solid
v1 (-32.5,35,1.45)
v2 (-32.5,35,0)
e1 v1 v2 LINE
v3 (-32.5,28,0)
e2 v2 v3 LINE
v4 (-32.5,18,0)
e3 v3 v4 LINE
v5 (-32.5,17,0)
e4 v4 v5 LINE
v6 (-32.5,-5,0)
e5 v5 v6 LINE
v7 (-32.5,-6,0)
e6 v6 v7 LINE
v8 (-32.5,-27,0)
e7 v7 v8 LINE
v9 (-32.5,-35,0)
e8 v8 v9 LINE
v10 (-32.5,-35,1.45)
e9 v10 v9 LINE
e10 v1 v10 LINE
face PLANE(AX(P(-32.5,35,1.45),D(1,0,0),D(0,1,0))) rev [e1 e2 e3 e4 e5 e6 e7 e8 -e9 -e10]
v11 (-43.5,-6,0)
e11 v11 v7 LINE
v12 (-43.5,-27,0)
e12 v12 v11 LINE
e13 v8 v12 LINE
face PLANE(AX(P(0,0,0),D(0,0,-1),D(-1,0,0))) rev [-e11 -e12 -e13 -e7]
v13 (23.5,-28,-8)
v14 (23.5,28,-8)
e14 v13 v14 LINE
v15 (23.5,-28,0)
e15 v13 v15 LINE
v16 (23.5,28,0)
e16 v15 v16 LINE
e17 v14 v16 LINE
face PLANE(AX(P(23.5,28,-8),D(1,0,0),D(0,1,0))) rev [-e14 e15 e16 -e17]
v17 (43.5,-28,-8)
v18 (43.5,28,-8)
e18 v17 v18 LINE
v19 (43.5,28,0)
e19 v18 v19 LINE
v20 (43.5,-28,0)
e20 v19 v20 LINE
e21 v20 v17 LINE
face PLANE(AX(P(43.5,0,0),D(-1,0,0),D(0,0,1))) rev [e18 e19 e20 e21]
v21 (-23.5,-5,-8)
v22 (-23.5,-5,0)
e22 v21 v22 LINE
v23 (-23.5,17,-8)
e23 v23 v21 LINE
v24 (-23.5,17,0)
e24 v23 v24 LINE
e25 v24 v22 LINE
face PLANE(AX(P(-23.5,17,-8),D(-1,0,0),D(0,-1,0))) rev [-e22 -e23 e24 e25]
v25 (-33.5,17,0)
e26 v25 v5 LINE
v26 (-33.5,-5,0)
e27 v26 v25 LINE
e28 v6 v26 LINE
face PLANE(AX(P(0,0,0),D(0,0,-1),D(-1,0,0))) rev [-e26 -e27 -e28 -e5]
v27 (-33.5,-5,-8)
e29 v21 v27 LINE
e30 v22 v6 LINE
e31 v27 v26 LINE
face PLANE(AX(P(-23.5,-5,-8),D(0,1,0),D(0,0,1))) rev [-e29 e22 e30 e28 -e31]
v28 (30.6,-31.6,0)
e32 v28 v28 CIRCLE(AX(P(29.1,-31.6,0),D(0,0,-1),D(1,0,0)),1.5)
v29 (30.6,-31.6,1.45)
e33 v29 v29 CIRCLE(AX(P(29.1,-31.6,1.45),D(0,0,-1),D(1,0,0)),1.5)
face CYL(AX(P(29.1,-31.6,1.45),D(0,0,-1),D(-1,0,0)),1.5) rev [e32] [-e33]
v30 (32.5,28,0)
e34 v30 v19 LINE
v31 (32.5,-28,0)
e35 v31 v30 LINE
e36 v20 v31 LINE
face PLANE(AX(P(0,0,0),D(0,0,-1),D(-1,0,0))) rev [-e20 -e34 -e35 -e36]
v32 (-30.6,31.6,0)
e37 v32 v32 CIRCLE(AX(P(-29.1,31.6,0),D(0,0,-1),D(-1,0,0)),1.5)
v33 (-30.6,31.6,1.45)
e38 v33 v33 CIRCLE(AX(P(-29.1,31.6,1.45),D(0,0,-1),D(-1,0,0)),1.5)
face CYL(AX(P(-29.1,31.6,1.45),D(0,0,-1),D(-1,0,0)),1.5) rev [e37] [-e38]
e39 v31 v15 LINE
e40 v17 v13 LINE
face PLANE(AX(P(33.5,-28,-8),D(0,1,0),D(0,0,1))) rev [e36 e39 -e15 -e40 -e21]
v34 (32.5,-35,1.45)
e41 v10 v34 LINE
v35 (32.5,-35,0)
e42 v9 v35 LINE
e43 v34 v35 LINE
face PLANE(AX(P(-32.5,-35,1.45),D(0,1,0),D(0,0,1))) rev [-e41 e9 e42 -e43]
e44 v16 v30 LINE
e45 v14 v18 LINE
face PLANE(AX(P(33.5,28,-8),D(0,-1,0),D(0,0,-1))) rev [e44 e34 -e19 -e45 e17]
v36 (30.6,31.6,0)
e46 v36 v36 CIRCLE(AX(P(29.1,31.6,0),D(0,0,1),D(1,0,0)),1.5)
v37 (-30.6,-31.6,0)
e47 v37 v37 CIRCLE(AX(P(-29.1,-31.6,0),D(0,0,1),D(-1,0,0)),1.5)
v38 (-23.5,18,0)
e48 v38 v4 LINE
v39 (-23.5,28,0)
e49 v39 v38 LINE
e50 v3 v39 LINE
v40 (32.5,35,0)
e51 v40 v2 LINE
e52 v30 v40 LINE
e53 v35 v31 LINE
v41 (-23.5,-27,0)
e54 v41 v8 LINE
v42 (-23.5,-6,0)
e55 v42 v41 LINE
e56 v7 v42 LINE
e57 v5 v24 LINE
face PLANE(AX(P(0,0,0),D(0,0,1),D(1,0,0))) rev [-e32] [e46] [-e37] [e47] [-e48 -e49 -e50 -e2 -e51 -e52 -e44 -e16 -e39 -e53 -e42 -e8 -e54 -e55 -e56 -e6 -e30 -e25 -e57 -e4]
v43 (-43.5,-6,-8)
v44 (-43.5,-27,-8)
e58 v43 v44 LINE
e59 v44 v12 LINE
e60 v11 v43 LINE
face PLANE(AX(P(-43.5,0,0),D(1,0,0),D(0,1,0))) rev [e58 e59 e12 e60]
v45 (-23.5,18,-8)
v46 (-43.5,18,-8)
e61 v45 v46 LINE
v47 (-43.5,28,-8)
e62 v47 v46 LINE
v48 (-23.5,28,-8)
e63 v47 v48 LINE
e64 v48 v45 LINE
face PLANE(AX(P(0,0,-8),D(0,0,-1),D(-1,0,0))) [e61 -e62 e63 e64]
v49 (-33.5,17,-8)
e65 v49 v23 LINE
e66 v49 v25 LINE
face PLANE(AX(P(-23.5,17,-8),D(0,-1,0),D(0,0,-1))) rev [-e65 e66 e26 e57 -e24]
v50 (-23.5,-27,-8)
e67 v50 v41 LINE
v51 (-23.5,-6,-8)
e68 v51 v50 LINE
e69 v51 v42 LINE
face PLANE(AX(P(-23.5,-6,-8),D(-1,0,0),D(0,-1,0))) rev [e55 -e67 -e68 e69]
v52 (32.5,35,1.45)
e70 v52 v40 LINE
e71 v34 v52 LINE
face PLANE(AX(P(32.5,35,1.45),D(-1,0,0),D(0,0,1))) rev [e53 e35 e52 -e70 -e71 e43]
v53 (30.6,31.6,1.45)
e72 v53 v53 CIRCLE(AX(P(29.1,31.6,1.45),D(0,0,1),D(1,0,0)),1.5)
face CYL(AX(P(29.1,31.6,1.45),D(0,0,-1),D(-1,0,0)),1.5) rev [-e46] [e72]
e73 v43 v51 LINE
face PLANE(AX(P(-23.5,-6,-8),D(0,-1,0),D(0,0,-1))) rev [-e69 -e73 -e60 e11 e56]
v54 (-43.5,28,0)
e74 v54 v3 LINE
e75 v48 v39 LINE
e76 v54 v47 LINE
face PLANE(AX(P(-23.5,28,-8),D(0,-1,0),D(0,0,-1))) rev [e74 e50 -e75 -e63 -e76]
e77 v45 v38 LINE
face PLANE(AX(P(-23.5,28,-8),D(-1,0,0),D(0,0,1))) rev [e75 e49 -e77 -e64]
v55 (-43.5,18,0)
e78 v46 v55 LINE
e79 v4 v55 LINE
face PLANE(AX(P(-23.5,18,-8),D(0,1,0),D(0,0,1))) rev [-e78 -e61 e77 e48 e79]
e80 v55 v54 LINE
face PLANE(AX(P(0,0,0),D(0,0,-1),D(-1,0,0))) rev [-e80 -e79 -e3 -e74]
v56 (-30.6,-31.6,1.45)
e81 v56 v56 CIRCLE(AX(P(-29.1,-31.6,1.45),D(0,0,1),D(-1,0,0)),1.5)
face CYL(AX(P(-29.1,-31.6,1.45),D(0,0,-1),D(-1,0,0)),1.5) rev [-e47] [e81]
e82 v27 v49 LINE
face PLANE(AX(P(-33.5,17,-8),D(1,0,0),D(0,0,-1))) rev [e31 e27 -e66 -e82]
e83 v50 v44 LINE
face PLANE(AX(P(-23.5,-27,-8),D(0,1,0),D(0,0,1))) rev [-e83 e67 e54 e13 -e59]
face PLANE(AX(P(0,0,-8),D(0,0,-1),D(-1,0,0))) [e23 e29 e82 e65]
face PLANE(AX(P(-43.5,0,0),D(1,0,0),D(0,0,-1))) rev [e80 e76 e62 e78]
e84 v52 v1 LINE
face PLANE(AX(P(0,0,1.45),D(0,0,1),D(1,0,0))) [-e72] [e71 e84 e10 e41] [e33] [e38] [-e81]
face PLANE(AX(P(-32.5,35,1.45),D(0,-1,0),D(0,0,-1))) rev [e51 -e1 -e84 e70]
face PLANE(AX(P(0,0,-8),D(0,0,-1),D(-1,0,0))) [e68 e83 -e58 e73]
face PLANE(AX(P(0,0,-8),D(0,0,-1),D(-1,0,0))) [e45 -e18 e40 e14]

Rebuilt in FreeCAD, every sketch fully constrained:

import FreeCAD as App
import Part
import Sketcher
from FreeCAD import Vector

doc = App.newDocument("Part")
body = doc.addObject("PartDesign::Body", "Body")

sketch1 = body.newObject("Sketcher::SketchObject", "Sketch")
sketch1.AttachmentSupport = (doc.getObject("XY_Plane"), [""])
sketch1.MapMode = "FlatFace"
sketch1.addGeometry([
    Part.LineSegment(Vector(-32.5, 35, 0), Vector(-32.5, -35, 0)),
    Part.LineSegment(Vector(-32.5, -35, 0), Vector(32.5, -35, 0)),
    Part.LineSegment(Vector(32.5, -35, 0), Vector(32.5, 35, 0)),
    Part.LineSegment(Vector(32.5, 35, 0), Vector(-32.5, 35, 0)),
], False)
sketch1.addConstraint([
    Sketcher.Constraint("Coincident", 0, 2, 1, 1),
    Sketcher.Constraint("Coincident", 1, 2, 2, 1),
    Sketcher.Constraint("Coincident", 2, 2, 3, 1),
    Sketcher.Constraint("Coincident", 3, 2, 0, 1),
    Sketcher.Constraint("Vertical", 0),
    Sketcher.Constraint("Horizontal", 1),
    Sketcher.Constraint("Vertical", 2),
    Sketcher.Constraint("Horizontal", 3),
    Sketcher.Constraint("Symmetric", 0, 2, 2, 2, -1, 1),
    Sketcher.Constraint("DistanceX", 1, 1, 1, 2, 65.0),
    Sketcher.Constraint("DistanceY", 0, 2, 0, 1, 70.0),
])
pad1 = body.newObject("PartDesign::Pad", "Pad")
pad1.Profile = sketch1
pad1.Length = 1.45

sketch2 = body.newObject("Sketcher::SketchObject", "Sketch001")
sketch2.AttachmentSupport = (doc.getObject("XY_Plane"), [""])
sketch2.MapMode = "FlatFace"
sketch2.addGeometry(Part.Circle(Vector(-29.1, 31.6, 0), Vector(0, 0, 1), 1.5), False)
sketch2.addConstraint([
    Sketcher.Constraint("Diameter", 0, 3.0),
    Sketcher.Constraint("DistanceX", 0, 3, -1, 1, 29.1),
    Sketcher.Constraint("DistanceY", -1, 1, 0, 3, 31.6),
])
pocket1 = body.newObject("PartDesign::Pocket", "Pocket")
pocket1.Profile = sketch2
pocket1.Type = "ThroughAll"
pocket1.Reversed = True
doc.recompute()

mirrored = body.newObject("PartDesign::Mirrored", "Mirrored")
mirrored.Originals = [pocket1]
mirrored.MirrorPlane = (doc.getObject("YZ_Plane"), [""])
body.Tip = mirrored
doc.recompute()

mirrored2 = body.newObject("PartDesign::Mirrored", "Mirrored001")
mirrored2.Originals = [pocket1]
mirrored2.MirrorPlane = (doc.getObject("XZ_Plane"), [""])
body.Tip = mirrored2

sketch3 = body.newObject("Sketcher::SketchObject", "Sketch002")
sketch3.AttachmentSupport = (doc.getObject("XY_Plane"), [""])
sketch3.MapMode = "FlatFace"
sketch3.addGeometry(Part.Circle(Vector(29.1, -31.6, 0), Vector(0, 0, 1), 1.5), False)
sketch3.addConstraint([
    Sketcher.Constraint("Diameter", 0, 3.0),
    Sketcher.Constraint("DistanceX", -1, 1, 0, 3, 29.1),
    Sketcher.Constraint("DistanceY", 0, 3, -1, 1, 31.6),
])
pocket2 = body.newObject("PartDesign::Pocket", "Pocket001")
pocket2.Profile = sketch3
pocket2.Type = "ThroughAll"
pocket2.Reversed = True

sketch4 = body.newObject("Sketcher::SketchObject", "Sketch003")
sketch4.AttachmentSupport = (doc.getObject("XY_Plane"), [""])
sketch4.MapMode = "FlatFace"
sketch4.addGeometry([
    Part.LineSegment(Vector(33.5, 28, 0), Vector(33.5, -28, 0)),
    Part.LineSegment(Vector(33.5, -28, 0), Vector(23.5, -28, 0)),
    Part.LineSegment(Vector(23.5, -28, 0), Vector(23.5, 28, 0)),
    Part.LineSegment(Vector(23.5, 28, 0), Vector(33.5, 28, 0)),
], False)
sketch4.addConstraint([
    Sketcher.Constraint("Coincident", 0, 2, 1, 1),
    Sketcher.Constraint("Coincident", 1, 2, 2, 1),
    Sketcher.Constraint("Coincident", 2, 2, 3, 1),
    Sketcher.Constraint("Coincident", 3, 2, 0, 1),
    Sketcher.Constraint("Vertical", 0),
    Sketcher.Constraint("Horizontal", 1),
    Sketcher.Constraint("Vertical", 2),
    Sketcher.Constraint("Horizontal", 3),
    Sketcher.Constraint("DistanceX", 1, 2, 1, 1, 10.0),
    Sketcher.Constraint("DistanceY", 0, 2, 0, 1, 56.0),
    Sketcher.Constraint("DistanceY", 0, 2, -1, 1, 28.0),
    Sketcher.Constraint("DistanceX", -1, 1, 0, 2, 33.5),
])
pad2 = body.newObject("PartDesign::Pad", "Pad001")
pad2.Profile = sketch4
pad2.Length = 8
pad2.Reversed = True

sketch5 = body.newObject("Sketcher::SketchObject", "Sketch004")
sketch5.AttachmentSupport = (doc.getObject("XY_Plane"), [""])
sketch5.MapMode = "FlatFace"
sketch5.addGeometry([
    Part.LineSegment(Vector(-23.5, 28, 0), Vector(-23.5, 18, 0)),
    Part.LineSegment(Vector(-23.5, 18, 0), Vector(-33.5, 18, 0)),
    Part.LineSegment(Vector(-33.5, 18, 0), Vector(-33.5, 28, 0)),
    Part.LineSegment(Vector(-33.5, 28, 0), Vector(-23.5, 28, 0)),
], False)
sketch5.addConstraint([
    Sketcher.Constraint("Coincident", 0, 2, 1, 1),
    Sketcher.Constraint("Coincident", 1, 2, 2, 1),
    Sketcher.Constraint("Coincident", 2, 2, 3, 1),
    Sketcher.Constraint("Coincident", 3, 2, 0, 1),
    Sketcher.Constraint("Vertical", 0),
    Sketcher.Constraint("Horizontal", 1),
    Sketcher.Constraint("Vertical", 2),
    Sketcher.Constraint("Horizontal", 3),
    Sketcher.Constraint("Equal", 3, 0),
    Sketcher.Constraint("DistanceX", 1, 2, 1, 1, 10.0),
    Sketcher.Constraint("DistanceY", -1, 1, 0, 2, 18.0),
    Sketcher.Constraint("DistanceX", 0, 2, -1, 1, 23.5),
])
pad3 = body.newObject("PartDesign::Pad", "Pad002")
pad3.Profile = sketch5
pad3.Length = 8
pad3.Reversed = True

sketch6 = body.newObject("Sketcher::SketchObject", "Sketch005")
sketch6.AttachmentSupport = (doc.getObject("XY_Plane"), [""])
sketch6.MapMode = "FlatFace"
sketch6.addGeometry([
    Part.LineSegment(Vector(-23.5, 17, 0), Vector(-23.5, -5, 0)),
    Part.LineSegment(Vector(-23.5, -5, 0), Vector(-33.5, -5, 0)),
    Part.LineSegment(Vector(-33.5, -5, 0), Vector(-33.5, 17, 0)),
    Part.LineSegment(Vector(-33.5, 17, 0), Vector(-23.5, 17, 0)),
], False)
sketch6.addConstraint([
    Sketcher.Constraint("Coincident", 0, 2, 1, 1),
    Sketcher.Constraint("Coincident", 1, 2, 2, 1),
    Sketcher.Constraint("Coincident", 2, 2, 3, 1),
    Sketcher.Constraint("Coincident", 3, 2, 0, 1),
    Sketcher.Constraint("Vertical", 0),
    Sketcher.Constraint("Horizontal", 1),
    Sketcher.Constraint("Vertical", 2),
    Sketcher.Constraint("Horizontal", 3),
    Sketcher.Constraint("DistanceX", 1, 2, 1, 1, 10.0),
    Sketcher.Constraint("DistanceY", 0, 2, 0, 1, 22.0),
    Sketcher.Constraint("DistanceY", 0, 2, -1, 1, 5.0),
    Sketcher.Constraint("DistanceX", 0, 2, -1, 1, 23.5),
])
pad4 = body.newObject("PartDesign::Pad", "Pad003")
pad4.Profile = sketch6
pad4.Length = 8
pad4.Reversed = True

sketch7 = body.newObject("Sketcher::SketchObject", "Sketch006")
sketch7.AttachmentSupport = (doc.getObject("XY_Plane"), [""])
sketch7.MapMode = "FlatFace"
sketch7.addGeometry([
    Part.LineSegment(Vector(-23.5, -6, 0), Vector(-23.5, -27, 0)),
    Part.LineSegment(Vector(-23.5, -27, 0), Vector(-33.5, -27, 0)),
    Part.LineSegment(Vector(-33.5, -27, 0), Vector(-33.5, -6, 0)),
    Part.LineSegment(Vector(-33.5, -6, 0), Vector(-23.5, -6, 0)),
], False)
sketch7.addConstraint([
    Sketcher.Constraint("Coincident", 0, 2, 1, 1),
    Sketcher.Constraint("Coincident", 1, 2, 2, 1),
    Sketcher.Constraint("Coincident", 2, 2, 3, 1),
    Sketcher.Constraint("Coincident", 3, 2, 0, 1),
    Sketcher.Constraint("Vertical", 0),
    Sketcher.Constraint("Horizontal", 1),
    Sketcher.Constraint("Vertical", 2),
    Sketcher.Constraint("Horizontal", 3),
    Sketcher.Constraint("DistanceX", 1, 2, 1, 1, 10.0),
    Sketcher.Constraint("DistanceY", 0, 2, 0, 1, 21.0),
    Sketcher.Constraint("DistanceY", 0, 2, -1, 1, 27.0),
    Sketcher.Constraint("DistanceX", 0, 2, -1, 1, 23.5),
])
pad5 = body.newObject("PartDesign::Pad", "Pad004")
pad5.Profile = sketch7
pad5.Length = 8
pad5.Reversed = True

sketch8 = body.newObject("Sketcher::SketchObject", "Sketch007")
sketch8.AttachmentSupport = (doc.getObject("YZ_Plane"), [""])
sketch8.MapMode = "FlatFace"
sketch8.AttachmentOffset = App.Placement(Vector(0, 0, -33.5), App.Rotation())
sketch8.addGeometry([
    Part.LineSegment(Vector(-6, -8, 0), Vector(-27, -8, 0)),
    Part.LineSegment(Vector(-27, -8, 0), Vector(-27, 0, 0)),
    Part.LineSegment(Vector(-27, 0, 0), Vector(-6, 0, 0)),
    Part.LineSegment(Vector(-6, 0, 0), Vector(-6, -8, 0)),
], False)
sketch8.addConstraint([
    Sketcher.Constraint("Coincident", 0, 2, 1, 1),
    Sketcher.Constraint("Coincident", 1, 2, 2, 1),
    Sketcher.Constraint("Coincident", 2, 2, 3, 1),
    Sketcher.Constraint("Coincident", 3, 2, 0, 1),
    Sketcher.Constraint("Horizontal", 0),
    Sketcher.Constraint("Vertical", 1),
    Sketcher.Constraint("Horizontal", 2),
    Sketcher.Constraint("Vertical", 3),
    Sketcher.Constraint("PointOnObject", 1, 2, -1),
    Sketcher.Constraint("DistanceX", 0, 2, 0, 1, 21.0),
    Sketcher.Constraint("DistanceY", 1, 1, 1, 2, 8.0),
    Sketcher.Constraint("DistanceX", 0, 2, -1, 1, 27.0),
])
pad6 = body.newObject("PartDesign::Pad", "Pad005")
pad6.Profile = sketch8
pad6.Length = 10
pad6.Reversed = True

sketch9 = body.newObject("Sketcher::SketchObject", "Sketch008")
sketch9.AttachmentSupport = (doc.getObject("YZ_Plane"), [""])
sketch9.MapMode = "FlatFace"
sketch9.AttachmentOffset = App.Placement(Vector(0, 0, -33.5), App.Rotation())
sketch9.addGeometry([
    Part.LineSegment(Vector(28, -8, 0), Vector(18, -8, 0)),
    Part.LineSegment(Vector(18, -8, 0), Vector(18, 0, 0)),
    Part.LineSegment(Vector(18, 0, 0), Vector(28, 0, 0)),
    Part.LineSegment(Vector(28, 0, 0), Vector(28, -8, 0)),
], False)
sketch9.addConstraint([
    Sketcher.Constraint("Coincident", 0, 2, 1, 1),
    Sketcher.Constraint("Coincident", 1, 2, 2, 1),
    Sketcher.Constraint("Coincident", 2, 2, 3, 1),
    Sketcher.Constraint("Coincident", 3, 2, 0, 1),
    Sketcher.Constraint("Horizontal", 0),
    Sketcher.Constraint("Vertical", 1),
    Sketcher.Constraint("Horizontal", 2),
    Sketcher.Constraint("Vertical", 3),
    Sketcher.Constraint("PointOnObject", 1, 2, -1),
    Sketcher.Constraint("DistanceX", 0, 2, 0, 1, 10.0),
    Sketcher.Constraint("DistanceY", 1, 1, 1, 2, 8.0),
    Sketcher.Constraint("DistanceX", -1, 1, 0, 2, 18.0),
])
pad7 = body.newObject("PartDesign::Pad", "Pad006")
pad7.Profile = sketch9
pad7.Length = 10
pad7.Reversed = True

sketch10 = body.newObject("Sketcher::SketchObject", "Sketch009")
sketch10.AttachmentSupport = (doc.getObject("YZ_Plane"), [""])
sketch10.MapMode = "FlatFace"
sketch10.AttachmentOffset = App.Placement(Vector(0, 0, 33.5), App.Rotation())
sketch10.addGeometry([
    Part.LineSegment(Vector(28, 0, 0), Vector(-28, 0, 0)),
    Part.LineSegment(Vector(-28, 0, 0), Vector(-28, -8, 0)),
    Part.LineSegment(Vector(-28, -8, 0), Vector(28, -8, 0)),
    Part.LineSegment(Vector(28, -8, 0), Vector(28, 0, 0)),
], False)
sketch10.addConstraint([
    Sketcher.Constraint("Coincident", 0, 2, 1, 1),
    Sketcher.Constraint("Coincident", 1, 2, 2, 1),
    Sketcher.Constraint("Coincident", 2, 2, 3, 1),
    Sketcher.Constraint("Coincident", 3, 2, 0, 1),
    Sketcher.Constraint("Horizontal", 0),
    Sketcher.Constraint("Vertical", 1),
    Sketcher.Constraint("Horizontal", 2),
    Sketcher.Constraint("Vertical", 3),
    Sketcher.Constraint("Symmetric", 0, 2, 3, 2, -1, 1),
    Sketcher.Constraint("DistanceX", 0, 2, 0, 1, 56.0),
    Sketcher.Constraint("DistanceY", 1, 2, 1, 1, 8.0),
])
pad8 = body.newObject("PartDesign::Pad", "Pad007")
pad8.Profile = sketch10
pad8.Length = 10

doc.recompute()
